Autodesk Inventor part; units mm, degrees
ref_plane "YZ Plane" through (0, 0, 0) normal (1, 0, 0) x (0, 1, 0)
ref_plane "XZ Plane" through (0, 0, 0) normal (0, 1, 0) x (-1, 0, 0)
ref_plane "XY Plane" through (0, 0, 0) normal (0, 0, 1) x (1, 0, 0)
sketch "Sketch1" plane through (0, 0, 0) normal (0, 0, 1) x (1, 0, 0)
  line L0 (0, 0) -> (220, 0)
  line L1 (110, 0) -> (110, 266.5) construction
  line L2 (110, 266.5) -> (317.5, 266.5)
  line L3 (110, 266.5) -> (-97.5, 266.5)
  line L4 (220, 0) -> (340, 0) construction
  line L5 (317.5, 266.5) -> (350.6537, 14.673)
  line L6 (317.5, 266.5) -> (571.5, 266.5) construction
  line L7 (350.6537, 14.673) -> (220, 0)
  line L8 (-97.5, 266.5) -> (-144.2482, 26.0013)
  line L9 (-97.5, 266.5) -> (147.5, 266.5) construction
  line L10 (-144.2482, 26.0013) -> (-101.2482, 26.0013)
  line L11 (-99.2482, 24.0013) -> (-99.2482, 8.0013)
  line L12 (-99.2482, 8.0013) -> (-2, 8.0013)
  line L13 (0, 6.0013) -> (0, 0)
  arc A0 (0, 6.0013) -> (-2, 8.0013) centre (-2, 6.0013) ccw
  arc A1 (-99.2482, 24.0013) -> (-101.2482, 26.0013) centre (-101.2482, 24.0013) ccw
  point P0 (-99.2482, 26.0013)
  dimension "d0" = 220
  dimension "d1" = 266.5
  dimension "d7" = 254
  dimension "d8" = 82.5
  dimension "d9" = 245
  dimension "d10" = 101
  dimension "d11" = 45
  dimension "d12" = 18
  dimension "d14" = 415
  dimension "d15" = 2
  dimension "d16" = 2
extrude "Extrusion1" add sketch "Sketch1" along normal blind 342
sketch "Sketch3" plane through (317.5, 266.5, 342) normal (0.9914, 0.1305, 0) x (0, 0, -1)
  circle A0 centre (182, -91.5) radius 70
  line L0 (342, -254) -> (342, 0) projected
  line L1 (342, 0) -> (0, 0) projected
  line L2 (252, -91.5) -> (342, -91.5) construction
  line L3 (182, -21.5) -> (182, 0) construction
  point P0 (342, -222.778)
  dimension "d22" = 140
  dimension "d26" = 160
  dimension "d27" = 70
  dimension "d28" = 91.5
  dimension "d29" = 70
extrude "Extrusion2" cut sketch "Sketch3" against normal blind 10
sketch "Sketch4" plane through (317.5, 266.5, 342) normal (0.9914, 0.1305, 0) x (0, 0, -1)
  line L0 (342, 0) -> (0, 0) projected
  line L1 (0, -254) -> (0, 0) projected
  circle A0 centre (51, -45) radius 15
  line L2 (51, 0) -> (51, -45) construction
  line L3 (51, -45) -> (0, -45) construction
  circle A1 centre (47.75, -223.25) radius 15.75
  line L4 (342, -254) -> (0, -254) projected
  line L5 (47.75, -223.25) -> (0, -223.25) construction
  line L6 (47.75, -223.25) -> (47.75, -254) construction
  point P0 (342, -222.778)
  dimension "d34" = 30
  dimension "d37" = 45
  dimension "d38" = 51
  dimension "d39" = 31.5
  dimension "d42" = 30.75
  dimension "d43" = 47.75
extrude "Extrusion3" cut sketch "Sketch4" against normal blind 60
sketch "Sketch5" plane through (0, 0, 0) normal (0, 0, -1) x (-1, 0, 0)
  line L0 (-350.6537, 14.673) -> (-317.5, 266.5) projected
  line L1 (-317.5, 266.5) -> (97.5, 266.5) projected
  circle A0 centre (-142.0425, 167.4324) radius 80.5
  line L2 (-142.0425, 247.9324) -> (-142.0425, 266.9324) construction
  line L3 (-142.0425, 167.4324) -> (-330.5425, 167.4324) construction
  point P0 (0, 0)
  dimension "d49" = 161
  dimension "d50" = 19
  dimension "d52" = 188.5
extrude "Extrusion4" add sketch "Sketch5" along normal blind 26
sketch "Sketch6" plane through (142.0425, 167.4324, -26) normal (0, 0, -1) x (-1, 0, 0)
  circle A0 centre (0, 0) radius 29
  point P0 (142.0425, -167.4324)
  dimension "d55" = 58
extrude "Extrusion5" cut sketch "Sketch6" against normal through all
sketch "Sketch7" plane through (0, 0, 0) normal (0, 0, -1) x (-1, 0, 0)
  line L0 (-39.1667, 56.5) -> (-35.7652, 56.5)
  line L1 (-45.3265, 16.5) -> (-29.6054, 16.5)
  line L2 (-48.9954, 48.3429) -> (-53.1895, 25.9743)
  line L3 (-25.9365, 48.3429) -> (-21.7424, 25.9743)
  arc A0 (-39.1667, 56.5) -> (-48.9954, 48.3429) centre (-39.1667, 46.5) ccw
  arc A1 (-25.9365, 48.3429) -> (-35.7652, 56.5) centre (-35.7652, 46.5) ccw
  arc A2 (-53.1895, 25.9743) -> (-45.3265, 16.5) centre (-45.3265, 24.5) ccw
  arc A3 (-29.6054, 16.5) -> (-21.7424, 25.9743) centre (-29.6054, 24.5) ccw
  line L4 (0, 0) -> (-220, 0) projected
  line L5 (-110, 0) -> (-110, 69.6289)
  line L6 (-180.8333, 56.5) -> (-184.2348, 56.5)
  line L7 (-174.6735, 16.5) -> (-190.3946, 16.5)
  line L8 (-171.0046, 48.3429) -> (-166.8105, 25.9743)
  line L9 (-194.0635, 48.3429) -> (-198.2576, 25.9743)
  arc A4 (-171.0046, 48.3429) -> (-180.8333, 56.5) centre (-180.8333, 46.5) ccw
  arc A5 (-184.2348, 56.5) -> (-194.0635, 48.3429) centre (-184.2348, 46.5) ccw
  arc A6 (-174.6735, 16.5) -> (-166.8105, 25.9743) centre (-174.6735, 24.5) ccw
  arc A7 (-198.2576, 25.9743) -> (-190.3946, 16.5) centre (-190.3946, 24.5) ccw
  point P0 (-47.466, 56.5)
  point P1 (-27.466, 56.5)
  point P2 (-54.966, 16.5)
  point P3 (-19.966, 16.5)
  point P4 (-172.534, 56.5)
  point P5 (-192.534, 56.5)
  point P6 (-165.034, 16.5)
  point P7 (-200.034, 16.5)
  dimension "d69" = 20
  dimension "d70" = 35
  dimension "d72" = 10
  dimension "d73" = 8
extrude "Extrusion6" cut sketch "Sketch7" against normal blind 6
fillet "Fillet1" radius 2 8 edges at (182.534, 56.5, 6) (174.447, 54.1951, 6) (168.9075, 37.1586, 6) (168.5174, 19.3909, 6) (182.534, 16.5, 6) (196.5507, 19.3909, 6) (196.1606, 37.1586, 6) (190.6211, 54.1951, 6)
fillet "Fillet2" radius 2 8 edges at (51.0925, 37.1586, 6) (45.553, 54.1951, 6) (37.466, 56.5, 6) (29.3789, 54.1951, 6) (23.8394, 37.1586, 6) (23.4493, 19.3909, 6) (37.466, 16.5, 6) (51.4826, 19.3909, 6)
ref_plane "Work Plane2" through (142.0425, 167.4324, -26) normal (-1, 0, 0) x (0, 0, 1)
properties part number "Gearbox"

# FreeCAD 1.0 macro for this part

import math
import FreeCAD as App
import Part
import Sketcher
from FreeCAD import Vector
Q = App.Units.Quantity


def edges_at(feature, points):
    """Names of the edges that pass closest to the given points."""
    edges = feature.Shape.Edges
    near = lambda p: min(range(len(edges)), key=lambda i: edges[i].distToShape(Part.Vertex(*p))[0])
    return sorted({f"Edge{near(p) + 1}" for p in points})

doc = App.newDocument("Part")
body = doc.addObject("PartDesign::Body", "Body")

sketch1 = body.newObject("Sketcher::SketchObject", "Sketch")
sketch1.AttachmentSupport = (doc.getObject("XY_Plane"), [""])
sketch1.MapMode = "FlatFace"
sketch1.addGeometry([
    Part.LineSegment(Vector(0, 6.0013, 0), Vector(0, 0, 0)),
    Part.LineSegment(Vector(0, 0, 0), Vector(220, 0, 0)),
    Part.LineSegment(Vector(220, 0, 0), Vector(350.6537, 14.673, 0)),
    Part.LineSegment(Vector(350.6537, 14.673, 0), Vector(317.5, 266.5, 0)),
    Part.LineSegment(Vector(317.5, 266.5, 0), Vector(-97.5, 266.5, 0)),
    Part.LineSegment(Vector(-97.5, 266.5, 0), Vector(-144.2482, 26.0013, 0)),
    Part.LineSegment(Vector(-144.2482, 26.0013, 0), Vector(-101.2482, 26.0013, 0)),
    Part.ArcOfCircle(Part.Circle(Vector(-101.2482, 24.0013, 0), Vector(0, 0, 1), 2), math.radians(0), math.radians(90)),
    Part.LineSegment(Vector(-99.2482, 24.0013, 0), Vector(-99.2482, 8.0013, 0)),
    Part.LineSegment(Vector(-99.2482, 8.0013, 0), Vector(-2, 8.0013, 0)),
    Part.ArcOfCircle(Part.Circle(Vector(-2, 6.0013, 0), Vector(0, 0, 1), 2), math.radians(0), math.radians(90)),
], False)
sketch1.addConstraint([
    Sketcher.Constraint("Coincident", 0, 2, 1, 1),
    Sketcher.Constraint("Coincident", 1, 2, 2, 1),
    Sketcher.Constraint("Coincident", 2, 2, 3, 1),
    Sketcher.Constraint("Coincident", 3, 2, 4, 1),
    Sketcher.Constraint("Coincident", 4, 2, 5, 1),
    Sketcher.Constraint("Coincident", 5, 2, 6, 1),
    Sketcher.Constraint("Tangent", 6, 2, 7, 2),
    Sketcher.Constraint("Tangent", 7, 1, 8, 1),
    Sketcher.Constraint("Coincident", 8, 2, 9, 1),
    Sketcher.Constraint("Tangent", 9, 2, 10, 2),
    Sketcher.Constraint("Tangent", 10, 1, 0, 1),
    Sketcher.Constraint("Vertical", 0),
    Sketcher.Constraint("Horizontal", 1),
    Sketcher.Constraint("Horizontal", 4),
    Sketcher.Constraint("Horizontal", 6),
    Sketcher.Constraint("Vertical", 8),
    Sketcher.Constraint("Horizontal", 9),
    Sketcher.Constraint("Coincident", 0, 2, -1, 1),
    Sketcher.Constraint("Equal", 7, 10),
    Sketcher.Constraint("Radius", 7, 2.0),
    Sketcher.Constraint("DistanceX", 1, 1, 1, 2, 220.0),
    Sketcher.Constraint("DistanceX", 4, 2, 4, 1, 415.0),
    Sketcher.Constraint("Angle", 5, Q("-101 deg")),
    Sketcher.Constraint("Distance", 3, 254.0),
    Sketcher.Constraint("Distance", 5, 245.0),
    Sketcher.Constraint("DistanceY", 10, 3, 7, 3, 18.0),
    Sketcher.Constraint("DistanceX", 5, 2, 7, 1, 45.0),
    Sketcher.Constraint("DistanceY", -1, 1, 3, 2, 266.5),
    Sketcher.Constraint("Angle", 3, Q("97.5 deg")),
    Sketcher.Constraint("DistanceX", -1, 1, 3, 2, 317.5),
])
pad1 = body.newObject("PartDesign::Pad", "Pad")
pad1.Profile = sketch1
pad1.Length = 342

sketch2 = body.newObject("Sketcher::SketchObject", "Sketch001")
sketch2.Placement = App.Placement(Vector(317.5, 266.5, 342), App.Rotation(Vector(0, 0, -1), Vector(-0.130526192, 0.991444861, 0), Vector(0.991444861, 0.130526192, 0), "ZXY"))
sketch2.addGeometry(Part.Circle(Vector(182, -91.5, 0), Vector(0, 0, 1), 70), False)
sketch2.addConstraint([
    Sketcher.Constraint("Diameter", 0, 140.0),
    Sketcher.Constraint("DistanceY", 0, 3, -1, 1, 91.5),
    Sketcher.Constraint("DistanceX", -1, 1, 0, 3, 182.0),
])
pocket1 = body.newObject("PartDesign::Pocket", "Pocket")
pocket1.Profile = sketch2
pocket1.Length = 10

sketch3 = body.newObject("Sketcher::SketchObject", "Sketch002")
sketch3.Placement = App.Placement(Vector(317.5, 266.5, 342), App.Rotation(Vector(0, 0, -1), Vector(-0.130526192, 0.991444861, 0), Vector(0.991444861, 0.130526192, 0), "ZXY"))
sketch3.addGeometry([
    Part.Circle(Vector(51, -45, 0), Vector(0, 0, 1), 15),
    Part.Circle(Vector(47.75, -223.25, 0), Vector(0, 0, 1), 15.75),
], False)
sketch3.addConstraint([
    Sketcher.Constraint("Diameter", 0, 30.0),
    Sketcher.Constraint("Diameter", 1, 31.5),
    Sketcher.Constraint("DistanceX", -1, 1, 0, 3, 51.0),
    Sketcher.Constraint("DistanceY", 0, 3, -1, 1, 45.0),
    Sketcher.Constraint("DistanceX", -1, 1, 1, 3, 47.75),
    Sketcher.Constraint("DistanceY", 1, 3, -1, 1, 223.25),
])
pocket2 = body.newObject("PartDesign::Pocket", "Pocket001")
pocket2.Profile = sketch3
pocket2.Length = 60

sketch4 = body.newObject("Sketcher::SketchObject", "Sketch003")
sketch4.AttachmentSupport = (doc.getObject("XY_Plane"), [""])
sketch4.MapMode = "FlatFace"
sketch4.addGeometry(Part.Circle(Vector(142.0425, 167.4324, 0), Vector(0, 0, 1), 80.5), False)
sketch4.addConstraint([
    Sketcher.Constraint("Diameter", 0, 161.0),
    Sketcher.Constraint("DistanceX", -1, 1, 0, 3, 142.0425),
    Sketcher.Constraint("DistanceY", -1, 1, 0, 3, 167.4324),
])
pad2 = body.newObject("PartDesign::Pad", "Pad001")
pad2.Profile = sketch4
pad2.Length = 26
pad2.Reversed = True

sketch5 = body.newObject("Sketcher::SketchObject", "Sketch004")
sketch5.AttachmentSupport = (doc.getObject("XY_Plane"), [""])
sketch5.MapMode = "FlatFace"
sketch5.AttachmentOffset = App.Placement(Vector(0, 0, -26), App.Rotation())
sketch5.addGeometry(Part.Circle(Vector(142.0425, 167.4324, 0), Vector(0, 0, 1), 29), False)
sketch5.addConstraint([
    Sketcher.Constraint("Diameter", 0, 58.0),
    Sketcher.Constraint("DistanceX", -1, 1, 0, 3, 142.0425),
    Sketcher.Constraint("DistanceY", -1, 1, 0, 3, 167.4324),
])
pocket3 = body.newObject("PartDesign::Pocket", "Pocket002")
pocket3.Profile = sketch5
pocket3.Type = "ThroughAll"
pocket3.Reversed = True

sketch6 = body.newObject("Sketcher::SketchObject", "Sketch005")
sketch6.AttachmentSupport = (doc.getObject("XY_Plane"), [""])
sketch6.MapMode = "FlatFace"
sketch6.addGeometry([
    Part.LineSegment(Vector(35.7652, 56.5, 0), Vector(39.1667, 56.5, 0)),
    Part.ArcOfCircle(Part.Circle(Vector(39.1667, 46.5, 0), Vector(0, 0, 1), 10), math.radians(10.619761), math.radians(90)),
    Part.LineSegment(Vector(48.9954, 48.3429, 0), Vector(53.1895, 25.9743, 0)),
    Part.ArcOfCircle(Part.Circle(Vector(45.3265, 24.5, 0), Vector(0, 0, 1), 8.000021), math.radians(-90), math.radians(10.619567)),
    Part.LineSegment(Vector(45.3265, 16.5, 0), Vector(29.6054, 16.5, 0)),
    Part.ArcOfCircle(Part.Circle(Vector(29.6054, 24.5, 0), Vector(0, 0, 1), 8), math.radians(169.380433), math.radians(270)),
    Part.LineSegment(Vector(21.7424, 25.9743, 0), Vector(25.9365, 48.3429, 0)),
    Part.ArcOfCircle(Part.Circle(Vector(35.7652, 46.5, 0), Vector(0, 0, 1), 9.999981), math.radians(90), math.radians(169.380239)),
    Part.ArcOfCircle(Part.Circle(Vector(180.8333, 46.5, 0), Vector(0, 0, 1), 9.999981), math.radians(90), math.radians(169.380239)),
    Part.LineSegment(Vector(180.8333, 56.5, 0), Vector(184.2348, 56.5, 0)),
    Part.ArcOfCircle(Part.Circle(Vector(184.2348, 46.5, 0), Vector(0, 0, 1), 10), math.radians(10.619761), math.radians(90)),
    Part.LineSegment(Vector(194.0635, 48.3429, 0), Vector(198.2576, 25.9743, 0)),
    Part.ArcOfCircle(Part.Circle(Vector(190.3946, 24.5, 0), Vector(0, 0, 1), 8.000021), math.radians(-90), math.radians(10.619567)),
    Part.LineSegment(Vector(190.3946, 16.5, 0), Vector(174.6735, 16.5, 0)),
    Part.ArcOfCircle(Part.Circle(Vector(174.6735, 24.5, 0), Vector(0, 0, 1), 8), math.radians(169.380433), math.radians(270)),
    Part.LineSegment(Vector(166.8105, 25.9743, 0), Vector(171.0046, 48.3429, 0)),
], False)
sketch6.addConstraint([
    Sketcher.Constraint("Tangent", 0, 2, 1, 2),
    Sketcher.Constraint("Tangent", 1, 1, 2, 1),
    Sketcher.Constraint("Tangent", 2, 2, 3, 2),
    Sketcher.Constraint("Tangent", 3, 1, 4, 1),
    Sketcher.Constraint("Tangent", 4, 2, 5, 2),
    Sketcher.Constraint("Tangent", 5, 1, 6, 1),
    Sketcher.Constraint("Tangent", 6, 2, 7, 2),
    Sketcher.Constraint("Tangent", 7, 1, 0, 1),
    Sketcher.Constraint("Tangent", 8, 1, 9, 1),
    Sketcher.Constraint("Tangent", 9, 2, 10, 2),
    Sketcher.Constraint("Tangent", 10, 1, 11, 1),
    Sketcher.Constraint("Tangent", 11, 2, 12, 2),
    Sketcher.Constraint("Tangent", 12, 1, 13, 1),
    Sketcher.Constraint("Tangent", 13, 2, 14, 2),
    Sketcher.Constraint("Tangent", 14, 1, 15, 1),
    Sketcher.Constraint("Tangent", 15, 2, 8, 2),
    Sketcher.Constraint("Horizontal", 0),
    Sketcher.Constraint("Horizontal", 4),
    Sketcher.Constraint("Horizontal", 9),
    Sketcher.Constraint("Horizontal", 13),
    Sketcher.Constraint("Equal", 3, 5),
    Sketcher.Constraint("Equal", 1, 7),
    Sketcher.Constraint("Equal", 7, 8),
    Sketcher.Constraint("Equal", 8, 10),
    Sketcher.Constraint("Equal", 5, 12),
    Sketcher.Constraint("Equal", 12, 14),
    Sketcher.Constraint("Parallel", 2, 11),
    Sketcher.Constraint("Parallel", 6, 15),
    Sketcher.Constraint("Horizontal", 7, 3, 8, 3),
    Sketcher.Constraint("Horizontal", 5, 3, 12, 3),
    Sketcher.Constraint("Horizontal", 2, 2, 5, 1),
    Sketcher.Constraint("Equal", 0, 9),
    Sketcher.Constraint("Radius", 1, 10.0),
    Sketcher.Constraint("Radius", 3, 8.0),
    Sketcher.Constraint("DistanceY", 3, 3, 1, 3, 22.0),
    Sketcher.Constraint("DistanceY", -1, 1, 1, 3, 46.5),
    Sketcher.Constraint("Angle", 2, Q("-79.3804 deg")),
    Sketcher.Constraint("DistanceX", 4, 2, 4, 1, 15.721),
    Sketcher.Constraint("DistanceX", 7, 3, 8, 3, 145.068),
    Sketcher.Constraint("DistanceX", -1, 1, 1, 3, 39.1667),
])
pocket4 = body.newObject("PartDesign::Pocket", "Pocket003")
pocket4.Profile = sketch6
pocket4.Length = 6
pocket4.Reversed = True
doc.recompute()

fillet = body.newObject("PartDesign::Fillet", "Fillet")
fillet.Base = (pocket4, edges_at(pocket4, [
    (182.534, 56.5, 6),
    (174.447, 54.195, 6),
    (168.907, 37.159, 6),
    (168.517, 19.391, 6),
    (182.534, 16.5, 6),
    (196.551, 19.391, 6),
    (196.161, 37.159, 6),
    (190.621, 54.195, 6),
]))
fillet.Radius = 2
doc.recompute()

fillet2 = body.newObject("PartDesign::Fillet", "Fillet001")
fillet2.Base = (fillet, edges_at(fillet, [
    (51.093, 37.159, 6),
    (45.553, 54.195, 6),
    (37.466, 56.5, 6),
    (29.379, 54.195, 6),
    (23.839, 37.159, 6),
    (23.449, 19.391, 6),
    (37.466, 16.5, 6),
    (51.483, 19.391, 6),
]))
fillet2.Radius = 2

doc.recompute()
